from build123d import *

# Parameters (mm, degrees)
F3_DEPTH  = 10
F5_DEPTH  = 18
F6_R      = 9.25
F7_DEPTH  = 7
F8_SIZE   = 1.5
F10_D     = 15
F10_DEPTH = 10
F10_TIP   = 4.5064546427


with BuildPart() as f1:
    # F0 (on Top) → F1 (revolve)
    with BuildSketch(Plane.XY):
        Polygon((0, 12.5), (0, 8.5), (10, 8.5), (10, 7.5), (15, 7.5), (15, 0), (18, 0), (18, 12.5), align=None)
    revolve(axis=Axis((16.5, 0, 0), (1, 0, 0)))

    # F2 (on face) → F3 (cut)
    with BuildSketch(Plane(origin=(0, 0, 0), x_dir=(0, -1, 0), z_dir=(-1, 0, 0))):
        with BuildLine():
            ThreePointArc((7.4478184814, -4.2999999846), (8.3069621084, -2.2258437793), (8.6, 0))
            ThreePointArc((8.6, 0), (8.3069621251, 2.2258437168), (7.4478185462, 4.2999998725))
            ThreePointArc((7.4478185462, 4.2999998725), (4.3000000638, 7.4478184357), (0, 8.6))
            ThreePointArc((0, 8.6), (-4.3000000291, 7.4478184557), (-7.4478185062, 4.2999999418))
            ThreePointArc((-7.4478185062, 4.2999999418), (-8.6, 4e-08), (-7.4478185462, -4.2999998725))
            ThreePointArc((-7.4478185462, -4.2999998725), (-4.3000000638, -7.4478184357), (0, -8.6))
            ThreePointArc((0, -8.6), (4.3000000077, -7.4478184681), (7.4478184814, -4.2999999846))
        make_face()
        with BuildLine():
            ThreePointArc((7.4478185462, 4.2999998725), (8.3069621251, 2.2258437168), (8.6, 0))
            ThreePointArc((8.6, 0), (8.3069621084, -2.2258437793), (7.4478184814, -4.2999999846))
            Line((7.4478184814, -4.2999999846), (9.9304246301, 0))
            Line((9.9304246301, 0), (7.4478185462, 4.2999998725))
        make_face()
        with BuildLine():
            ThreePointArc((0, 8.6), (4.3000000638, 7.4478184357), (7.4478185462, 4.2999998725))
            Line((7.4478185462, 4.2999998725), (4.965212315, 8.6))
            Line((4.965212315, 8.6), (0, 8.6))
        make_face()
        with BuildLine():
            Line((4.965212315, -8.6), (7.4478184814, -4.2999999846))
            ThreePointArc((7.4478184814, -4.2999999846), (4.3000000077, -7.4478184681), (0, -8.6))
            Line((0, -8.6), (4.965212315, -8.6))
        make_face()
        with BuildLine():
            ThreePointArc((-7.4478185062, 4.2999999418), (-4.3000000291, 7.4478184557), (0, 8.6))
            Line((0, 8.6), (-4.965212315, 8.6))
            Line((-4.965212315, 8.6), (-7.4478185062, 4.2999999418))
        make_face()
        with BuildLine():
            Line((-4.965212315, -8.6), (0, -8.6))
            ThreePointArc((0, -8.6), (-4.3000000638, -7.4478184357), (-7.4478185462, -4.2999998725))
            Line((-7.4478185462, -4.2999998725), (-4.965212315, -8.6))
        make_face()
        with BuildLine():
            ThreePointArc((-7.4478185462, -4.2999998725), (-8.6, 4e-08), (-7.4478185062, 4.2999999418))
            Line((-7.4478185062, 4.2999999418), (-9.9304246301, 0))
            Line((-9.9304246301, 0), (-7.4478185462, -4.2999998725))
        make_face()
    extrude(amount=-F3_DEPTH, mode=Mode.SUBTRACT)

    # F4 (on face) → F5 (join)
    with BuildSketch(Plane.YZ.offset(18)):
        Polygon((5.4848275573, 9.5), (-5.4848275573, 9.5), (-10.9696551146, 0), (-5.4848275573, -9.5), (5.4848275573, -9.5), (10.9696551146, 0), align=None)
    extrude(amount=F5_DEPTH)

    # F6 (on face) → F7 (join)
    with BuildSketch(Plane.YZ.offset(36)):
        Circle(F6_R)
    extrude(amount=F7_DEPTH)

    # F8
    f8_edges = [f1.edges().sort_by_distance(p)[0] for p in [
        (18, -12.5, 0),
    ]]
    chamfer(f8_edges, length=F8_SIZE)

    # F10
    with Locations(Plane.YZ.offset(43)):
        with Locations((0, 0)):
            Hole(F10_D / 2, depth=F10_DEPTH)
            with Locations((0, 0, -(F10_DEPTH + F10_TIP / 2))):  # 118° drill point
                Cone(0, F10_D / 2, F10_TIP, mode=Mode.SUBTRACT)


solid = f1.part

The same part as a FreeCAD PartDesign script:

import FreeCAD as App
import Part
import Sketcher
Q = App.Units.Quantity


def edges_at(feature, points):
    """Names of the edges that pass closest to the given points."""
    edges = feature.Shape.Edges
    near = lambda p: min(range(len(edges)), key=lambda i: edges[i].distToShape(Part.Vertex(*p))[0])
    return sorted({f"Edge{near(p) + 1}" for p in points})

doc = App.newDocument("Part")
body = doc.addObject("PartDesign::Body", "Body")

# Sketch on XY plane
sketch1 = body.newObject("Sketcher::SketchObject", "Sketch")
sketch1.AttachmentSupport = (doc.getObject("XY_Plane"), [""])
sketch1.MapMode = "FlatFace"
sketch1.addGeometry([
    Part.LineSegment(App.Vector(0, 12.5, 0), App.Vector(0, 8.5, 0)),  # 0
    Part.LineSegment(App.Vector(0, 8.5, 0), App.Vector(10, 8.5, 0)),  # 1
    Part.LineSegment(App.Vector(10, 8.5, 0), App.Vector(10, 7.5, 0)),  # 2
    Part.LineSegment(App.Vector(10, 7.5, 0), App.Vector(15, 7.5, 0)),  # 3
    Part.LineSegment(App.Vector(15, 7.5, 0), App.Vector(15, 0, 0)),  # 4
    Part.LineSegment(App.Vector(15, 0, 0), App.Vector(18, 0, 0)),  # 5
    Part.LineSegment(App.Vector(18, 0, 0), App.Vector(18, 12.5, 0)),  # 6
    Part.LineSegment(App.Vector(18, 12.5, 0), App.Vector(0, 12.5, 0)),  # 7
], False)
sketch1.addConstraint([
    Sketcher.Constraint("Coincident", 0, 2, 1, 1),
    Sketcher.Constraint("Coincident", 1, 2, 2, 1),
    Sketcher.Constraint("Coincident", 2, 2, 3, 1),
    Sketcher.Constraint("Coincident", 3, 2, 4, 1),
    Sketcher.Constraint("Coincident", 4, 2, 5, 1),
    Sketcher.Constraint("Coincident", 5, 2, 6, 1),
    Sketcher.Constraint("Coincident", 6, 2, 7, 1),
    Sketcher.Constraint("Coincident", 7, 2, 0, 1),
    Sketcher.Constraint("Vertical", 0),
    Sketcher.Constraint("Horizontal", 1),
    Sketcher.Constraint("Vertical", 2),
    Sketcher.Constraint("Horizontal", 3),
    Sketcher.Constraint("Vertical", 4),
    Sketcher.Constraint("Horizontal", 5),
    Sketcher.Constraint("Vertical", 6),
    Sketcher.Constraint("Horizontal", 7),
    Sketcher.Constraint("PointOnObject", 0, 2, -2),
    Sketcher.Constraint("PointOnObject", 4, 2, -1),
    Sketcher.Constraint("DistanceX", 1, 1, 1, 2, Q("10 mm")),
    Sketcher.Constraint("DistanceX", 3, 1, 3, 2, Q("5 mm")),
    Sketcher.Constraint("DistanceX", 5, 1, 5, 2, Q("3 mm")),
    Sketcher.Constraint("DistanceY", 0, 2, 0, 1, Q("4 mm")),
    Sketcher.Constraint("DistanceY", 2, 2, 2, 1, Q("1 mm")),
    Sketcher.Constraint("DistanceY", 4, 2, 4, 1, Q("7.5 mm")),
])
revolution = body.newObject("PartDesign::Revolution", "Revolution")
revolution.Profile = sketch1
revolution.ReferenceAxis = (sketch1, ["H_Axis"])
revolution.Angle = 360

# Sketch on YZ plane
sketch2 = body.newObject("Sketcher::SketchObject", "Sketch001")
sketch2.AttachmentSupport = (doc.getObject("YZ_Plane"), [""])
sketch2.MapMode = "FlatFace"
sketch2.addGeometry([
    Part.LineSegment(App.Vector(7.447819, -4.3, 0), App.Vector(4.965212, -8.6, 0)),  # 0
    Part.LineSegment(App.Vector(4.965212, -8.6, 0), App.Vector(-4.965212, -8.6, 0)),  # 1
    Part.LineSegment(App.Vector(-4.965212, -8.6, 0), App.Vector(-7.447818, -4.3, 0)),  # 2
    Part.LineSegment(App.Vector(-7.447818, -4.3, 0), App.Vector(-9.930425, 0, 0)),  # 3
    Part.LineSegment(App.Vector(-9.930425, 0, 0), App.Vector(-7.447819, 4.3, 0)),  # 4
    Part.LineSegment(App.Vector(-7.447819, 4.3, 0), App.Vector(-4.965212, 8.6, 0)),  # 5
    Part.LineSegment(App.Vector(-4.965212, 8.6, 0), App.Vector(4.965212, 8.6, 0)),  # 6
    Part.LineSegment(App.Vector(4.965212, 8.6, 0), App.Vector(7.447819, 4.3, 0)),  # 7
    Part.LineSegment(App.Vector(7.447819, 4.3, 0), App.Vector(9.930425, 0, 0)),  # 8
    Part.LineSegment(App.Vector(9.930425, 0, 0), App.Vector(7.447819, -4.3, 0)),  # 9
], False)
sketch2.addConstraint([
    Sketcher.Constraint("Coincident", 0, 2, 1, 1),
    Sketcher.Constraint("Coincident", 1, 2, 2, 1),
    Sketcher.Constraint("Coincident", 2, 2, 3, 1),
    Sketcher.Constraint("Coincident", 3, 2, 4, 1),
    Sketcher.Constraint("Coincident", 4, 2, 5, 1),
    Sketcher.Constraint("Coincident", 5, 2, 6, 1),
    Sketcher.Constraint("Coincident", 6, 2, 7, 1),
    Sketcher.Constraint("Coincident", 7, 2, 8, 1),
    Sketcher.Constraint("Coincident", 8, 2, 9, 1),
    Sketcher.Constraint("Coincident", 9, 2, 0, 1),
    Sketcher.Constraint("Horizontal", 1),
    Sketcher.Constraint("Horizontal", 6),
    Sketcher.Constraint("Symmetric", 0, 2, 5, 2, -1, 1),
    Sketcher.Constraint("Symmetric", 2, 2, 7, 2, -1, 1),
    Sketcher.Constraint("Symmetric", 3, 2, 8, 2, -1, 1),
    Sketcher.Constraint("Symmetric", 4, 2, 9, 2, -1, 1),
    Sketcher.Constraint("Symmetric", 4, 2, 7, 2, -2),
    Sketcher.Constraint("PointOnObject", 3, 2, -1),
    Sketcher.Constraint("Parallel", 2, 3),
    Sketcher.Constraint("Parallel", 0, 4),
    Sketcher.Constraint("Parallel", 3, 7),
    Sketcher.Constraint("Equal", 2, 3),
    Sketcher.Constraint("Angle", 0, Q("-120 deg")),
    Sketcher.Constraint("DistanceY", 0, 2, -1, 1, Q("8.6 mm")),
    Sketcher.Constraint("DistanceX", 1, 2, 1, 1, Q("9.930425 mm")),
])
pocket1 = body.newObject("PartDesign::Pocket", "Pocket")
pocket1.Profile = sketch2
pocket1.Length = 10
pocket1.Reversed = True

# Sketch on YZ plane
sketch3 = body.newObject("Sketcher::SketchObject", "Sketch002")
sketch3.AttachmentSupport = (doc.getObject("YZ_Plane"), [""])
sketch3.MapMode = "FlatFace"
sketch3.AttachmentOffset = App.Placement(App.Vector(0, 0, 18), App.Rotation())
sketch3.addGeometry([
    Part.LineSegment(App.Vector(5.484828, 9.5, 0), App.Vector(-5.484828, 9.5, 0)),  # 0
    Part.LineSegment(App.Vector(-5.484828, 9.5, 0), App.Vector(-10.969655, 0, 0)),  # 1
    Part.LineSegment(App.Vector(-10.969655, 0, 0), App.Vector(-5.484828, -9.5, 0)),  # 2
    Part.LineSegment(App.Vector(-5.484828, -9.5, 0), App.Vector(5.484828, -9.5, 0)),  # 3
    Part.LineSegment(App.Vector(5.484828, -9.5, 0), App.Vector(10.969655, 0, 0)),  # 4
    Part.LineSegment(App.Vector(10.969655, 0, 0), App.Vector(5.484828, 9.5, 0)),  # 5
], False)
sketch3.addConstraint([
    Sketcher.Constraint("Coincident", 0, 2, 1, 1),
    Sketcher.Constraint("Coincident", 1, 2, 2, 1),
    Sketcher.Constraint("Coincident", 2, 2, 3, 1),
    Sketcher.Constraint("Coincident", 3, 2, 4, 1),
    Sketcher.Constraint("Coincident", 4, 2, 5, 1),
    Sketcher.Constraint("Coincident", 5, 2, 0, 1),
    Sketcher.Constraint("Horizontal", 0),
    Sketcher.Constraint("Horizontal", 3),
    Sketcher.Constraint("Symmetric", 0, 2, 3, 2, -1, 1),
    Sketcher.Constraint("Symmetric", 1, 2, 4, 2, -1, 1),
    Sketcher.Constraint("PointOnObject", 1, 2, -1),
    Sketcher.Constraint("Parallel", 2, 5),
    Sketcher.Constraint("Vertical", 0, 2, 2, 2),
    Sketcher.Constraint("Angle", 1, Q("-120 deg")),
    Sketcher.Constraint("DistanceY", 2, 2, 0, 2, Q("19 mm")),
    Sketcher.Constraint("DistanceX", 0, 2, 0, 1, Q("10.969655 mm")),
])
pad1 = body.newObject("PartDesign::Pad", "Pad")
pad1.Profile = sketch3
pad1.Length = 18

# Sketch on YZ plane
sketch4 = body.newObject("Sketcher::SketchObject", "Sketch003")
sketch4.AttachmentSupport = (doc.getObject("YZ_Plane"), [""])
sketch4.MapMode = "FlatFace"
sketch4.AttachmentOffset = App.Placement(App.Vector(0, 0, 36), App.Rotation())
sketch4.addGeometry(Part.Circle(App.Vector(0, 0, 0), App.Vector(0, 0, 1), 9.25), False)
sketch4.addConstraint([
    Sketcher.Constraint("Coincident", 0, 3, -1, 1),
    Sketcher.Constraint("Diameter", 0, Q("18.5 mm")),
])
pad2 = body.newObject("PartDesign::Pad", "Pad001")
pad2.Profile = sketch4
pad2.Length = 7
doc.recompute()

chamfer = body.newObject("PartDesign::Chamfer", "Chamfer")
chamfer.Base = (pad2, edges_at(pad2, [(18, -12.5, 0)]))
chamfer.Size = 1.5

# Sketch on YZ plane
sketch5 = body.newObject("Sketcher::SketchObject", "Sketch004")
sketch5.AttachmentSupport = (doc.getObject("YZ_Plane"), [""])
sketch5.MapMode = "FlatFace"
sketch5.AttachmentOffset = App.Placement(App.Vector(0, 0, 43), App.Rotation())
sketch5.addGeometry(Part.Circle(App.Vector(0, 0, 0), App.Vector(0, 0, 1), 7.5), False)
sketch5.addConstraint([
    Sketcher.Constraint("Coincident", 0, 3, -1, 1),
    Sketcher.Constraint("Diameter", 0, Q("15 mm")),
])
doc.recompute()
hole = body.newObject("PartDesign::Hole", "Hole")
hole.Profile = sketch5
hole.ThreadType = "None"
hole.Diameter = 15
hole.DepthType = "Dimension"
hole.Depth = 10
hole.DrillPoint = "Angled"
hole.DrillPointAngle = 118

doc.recompute()
